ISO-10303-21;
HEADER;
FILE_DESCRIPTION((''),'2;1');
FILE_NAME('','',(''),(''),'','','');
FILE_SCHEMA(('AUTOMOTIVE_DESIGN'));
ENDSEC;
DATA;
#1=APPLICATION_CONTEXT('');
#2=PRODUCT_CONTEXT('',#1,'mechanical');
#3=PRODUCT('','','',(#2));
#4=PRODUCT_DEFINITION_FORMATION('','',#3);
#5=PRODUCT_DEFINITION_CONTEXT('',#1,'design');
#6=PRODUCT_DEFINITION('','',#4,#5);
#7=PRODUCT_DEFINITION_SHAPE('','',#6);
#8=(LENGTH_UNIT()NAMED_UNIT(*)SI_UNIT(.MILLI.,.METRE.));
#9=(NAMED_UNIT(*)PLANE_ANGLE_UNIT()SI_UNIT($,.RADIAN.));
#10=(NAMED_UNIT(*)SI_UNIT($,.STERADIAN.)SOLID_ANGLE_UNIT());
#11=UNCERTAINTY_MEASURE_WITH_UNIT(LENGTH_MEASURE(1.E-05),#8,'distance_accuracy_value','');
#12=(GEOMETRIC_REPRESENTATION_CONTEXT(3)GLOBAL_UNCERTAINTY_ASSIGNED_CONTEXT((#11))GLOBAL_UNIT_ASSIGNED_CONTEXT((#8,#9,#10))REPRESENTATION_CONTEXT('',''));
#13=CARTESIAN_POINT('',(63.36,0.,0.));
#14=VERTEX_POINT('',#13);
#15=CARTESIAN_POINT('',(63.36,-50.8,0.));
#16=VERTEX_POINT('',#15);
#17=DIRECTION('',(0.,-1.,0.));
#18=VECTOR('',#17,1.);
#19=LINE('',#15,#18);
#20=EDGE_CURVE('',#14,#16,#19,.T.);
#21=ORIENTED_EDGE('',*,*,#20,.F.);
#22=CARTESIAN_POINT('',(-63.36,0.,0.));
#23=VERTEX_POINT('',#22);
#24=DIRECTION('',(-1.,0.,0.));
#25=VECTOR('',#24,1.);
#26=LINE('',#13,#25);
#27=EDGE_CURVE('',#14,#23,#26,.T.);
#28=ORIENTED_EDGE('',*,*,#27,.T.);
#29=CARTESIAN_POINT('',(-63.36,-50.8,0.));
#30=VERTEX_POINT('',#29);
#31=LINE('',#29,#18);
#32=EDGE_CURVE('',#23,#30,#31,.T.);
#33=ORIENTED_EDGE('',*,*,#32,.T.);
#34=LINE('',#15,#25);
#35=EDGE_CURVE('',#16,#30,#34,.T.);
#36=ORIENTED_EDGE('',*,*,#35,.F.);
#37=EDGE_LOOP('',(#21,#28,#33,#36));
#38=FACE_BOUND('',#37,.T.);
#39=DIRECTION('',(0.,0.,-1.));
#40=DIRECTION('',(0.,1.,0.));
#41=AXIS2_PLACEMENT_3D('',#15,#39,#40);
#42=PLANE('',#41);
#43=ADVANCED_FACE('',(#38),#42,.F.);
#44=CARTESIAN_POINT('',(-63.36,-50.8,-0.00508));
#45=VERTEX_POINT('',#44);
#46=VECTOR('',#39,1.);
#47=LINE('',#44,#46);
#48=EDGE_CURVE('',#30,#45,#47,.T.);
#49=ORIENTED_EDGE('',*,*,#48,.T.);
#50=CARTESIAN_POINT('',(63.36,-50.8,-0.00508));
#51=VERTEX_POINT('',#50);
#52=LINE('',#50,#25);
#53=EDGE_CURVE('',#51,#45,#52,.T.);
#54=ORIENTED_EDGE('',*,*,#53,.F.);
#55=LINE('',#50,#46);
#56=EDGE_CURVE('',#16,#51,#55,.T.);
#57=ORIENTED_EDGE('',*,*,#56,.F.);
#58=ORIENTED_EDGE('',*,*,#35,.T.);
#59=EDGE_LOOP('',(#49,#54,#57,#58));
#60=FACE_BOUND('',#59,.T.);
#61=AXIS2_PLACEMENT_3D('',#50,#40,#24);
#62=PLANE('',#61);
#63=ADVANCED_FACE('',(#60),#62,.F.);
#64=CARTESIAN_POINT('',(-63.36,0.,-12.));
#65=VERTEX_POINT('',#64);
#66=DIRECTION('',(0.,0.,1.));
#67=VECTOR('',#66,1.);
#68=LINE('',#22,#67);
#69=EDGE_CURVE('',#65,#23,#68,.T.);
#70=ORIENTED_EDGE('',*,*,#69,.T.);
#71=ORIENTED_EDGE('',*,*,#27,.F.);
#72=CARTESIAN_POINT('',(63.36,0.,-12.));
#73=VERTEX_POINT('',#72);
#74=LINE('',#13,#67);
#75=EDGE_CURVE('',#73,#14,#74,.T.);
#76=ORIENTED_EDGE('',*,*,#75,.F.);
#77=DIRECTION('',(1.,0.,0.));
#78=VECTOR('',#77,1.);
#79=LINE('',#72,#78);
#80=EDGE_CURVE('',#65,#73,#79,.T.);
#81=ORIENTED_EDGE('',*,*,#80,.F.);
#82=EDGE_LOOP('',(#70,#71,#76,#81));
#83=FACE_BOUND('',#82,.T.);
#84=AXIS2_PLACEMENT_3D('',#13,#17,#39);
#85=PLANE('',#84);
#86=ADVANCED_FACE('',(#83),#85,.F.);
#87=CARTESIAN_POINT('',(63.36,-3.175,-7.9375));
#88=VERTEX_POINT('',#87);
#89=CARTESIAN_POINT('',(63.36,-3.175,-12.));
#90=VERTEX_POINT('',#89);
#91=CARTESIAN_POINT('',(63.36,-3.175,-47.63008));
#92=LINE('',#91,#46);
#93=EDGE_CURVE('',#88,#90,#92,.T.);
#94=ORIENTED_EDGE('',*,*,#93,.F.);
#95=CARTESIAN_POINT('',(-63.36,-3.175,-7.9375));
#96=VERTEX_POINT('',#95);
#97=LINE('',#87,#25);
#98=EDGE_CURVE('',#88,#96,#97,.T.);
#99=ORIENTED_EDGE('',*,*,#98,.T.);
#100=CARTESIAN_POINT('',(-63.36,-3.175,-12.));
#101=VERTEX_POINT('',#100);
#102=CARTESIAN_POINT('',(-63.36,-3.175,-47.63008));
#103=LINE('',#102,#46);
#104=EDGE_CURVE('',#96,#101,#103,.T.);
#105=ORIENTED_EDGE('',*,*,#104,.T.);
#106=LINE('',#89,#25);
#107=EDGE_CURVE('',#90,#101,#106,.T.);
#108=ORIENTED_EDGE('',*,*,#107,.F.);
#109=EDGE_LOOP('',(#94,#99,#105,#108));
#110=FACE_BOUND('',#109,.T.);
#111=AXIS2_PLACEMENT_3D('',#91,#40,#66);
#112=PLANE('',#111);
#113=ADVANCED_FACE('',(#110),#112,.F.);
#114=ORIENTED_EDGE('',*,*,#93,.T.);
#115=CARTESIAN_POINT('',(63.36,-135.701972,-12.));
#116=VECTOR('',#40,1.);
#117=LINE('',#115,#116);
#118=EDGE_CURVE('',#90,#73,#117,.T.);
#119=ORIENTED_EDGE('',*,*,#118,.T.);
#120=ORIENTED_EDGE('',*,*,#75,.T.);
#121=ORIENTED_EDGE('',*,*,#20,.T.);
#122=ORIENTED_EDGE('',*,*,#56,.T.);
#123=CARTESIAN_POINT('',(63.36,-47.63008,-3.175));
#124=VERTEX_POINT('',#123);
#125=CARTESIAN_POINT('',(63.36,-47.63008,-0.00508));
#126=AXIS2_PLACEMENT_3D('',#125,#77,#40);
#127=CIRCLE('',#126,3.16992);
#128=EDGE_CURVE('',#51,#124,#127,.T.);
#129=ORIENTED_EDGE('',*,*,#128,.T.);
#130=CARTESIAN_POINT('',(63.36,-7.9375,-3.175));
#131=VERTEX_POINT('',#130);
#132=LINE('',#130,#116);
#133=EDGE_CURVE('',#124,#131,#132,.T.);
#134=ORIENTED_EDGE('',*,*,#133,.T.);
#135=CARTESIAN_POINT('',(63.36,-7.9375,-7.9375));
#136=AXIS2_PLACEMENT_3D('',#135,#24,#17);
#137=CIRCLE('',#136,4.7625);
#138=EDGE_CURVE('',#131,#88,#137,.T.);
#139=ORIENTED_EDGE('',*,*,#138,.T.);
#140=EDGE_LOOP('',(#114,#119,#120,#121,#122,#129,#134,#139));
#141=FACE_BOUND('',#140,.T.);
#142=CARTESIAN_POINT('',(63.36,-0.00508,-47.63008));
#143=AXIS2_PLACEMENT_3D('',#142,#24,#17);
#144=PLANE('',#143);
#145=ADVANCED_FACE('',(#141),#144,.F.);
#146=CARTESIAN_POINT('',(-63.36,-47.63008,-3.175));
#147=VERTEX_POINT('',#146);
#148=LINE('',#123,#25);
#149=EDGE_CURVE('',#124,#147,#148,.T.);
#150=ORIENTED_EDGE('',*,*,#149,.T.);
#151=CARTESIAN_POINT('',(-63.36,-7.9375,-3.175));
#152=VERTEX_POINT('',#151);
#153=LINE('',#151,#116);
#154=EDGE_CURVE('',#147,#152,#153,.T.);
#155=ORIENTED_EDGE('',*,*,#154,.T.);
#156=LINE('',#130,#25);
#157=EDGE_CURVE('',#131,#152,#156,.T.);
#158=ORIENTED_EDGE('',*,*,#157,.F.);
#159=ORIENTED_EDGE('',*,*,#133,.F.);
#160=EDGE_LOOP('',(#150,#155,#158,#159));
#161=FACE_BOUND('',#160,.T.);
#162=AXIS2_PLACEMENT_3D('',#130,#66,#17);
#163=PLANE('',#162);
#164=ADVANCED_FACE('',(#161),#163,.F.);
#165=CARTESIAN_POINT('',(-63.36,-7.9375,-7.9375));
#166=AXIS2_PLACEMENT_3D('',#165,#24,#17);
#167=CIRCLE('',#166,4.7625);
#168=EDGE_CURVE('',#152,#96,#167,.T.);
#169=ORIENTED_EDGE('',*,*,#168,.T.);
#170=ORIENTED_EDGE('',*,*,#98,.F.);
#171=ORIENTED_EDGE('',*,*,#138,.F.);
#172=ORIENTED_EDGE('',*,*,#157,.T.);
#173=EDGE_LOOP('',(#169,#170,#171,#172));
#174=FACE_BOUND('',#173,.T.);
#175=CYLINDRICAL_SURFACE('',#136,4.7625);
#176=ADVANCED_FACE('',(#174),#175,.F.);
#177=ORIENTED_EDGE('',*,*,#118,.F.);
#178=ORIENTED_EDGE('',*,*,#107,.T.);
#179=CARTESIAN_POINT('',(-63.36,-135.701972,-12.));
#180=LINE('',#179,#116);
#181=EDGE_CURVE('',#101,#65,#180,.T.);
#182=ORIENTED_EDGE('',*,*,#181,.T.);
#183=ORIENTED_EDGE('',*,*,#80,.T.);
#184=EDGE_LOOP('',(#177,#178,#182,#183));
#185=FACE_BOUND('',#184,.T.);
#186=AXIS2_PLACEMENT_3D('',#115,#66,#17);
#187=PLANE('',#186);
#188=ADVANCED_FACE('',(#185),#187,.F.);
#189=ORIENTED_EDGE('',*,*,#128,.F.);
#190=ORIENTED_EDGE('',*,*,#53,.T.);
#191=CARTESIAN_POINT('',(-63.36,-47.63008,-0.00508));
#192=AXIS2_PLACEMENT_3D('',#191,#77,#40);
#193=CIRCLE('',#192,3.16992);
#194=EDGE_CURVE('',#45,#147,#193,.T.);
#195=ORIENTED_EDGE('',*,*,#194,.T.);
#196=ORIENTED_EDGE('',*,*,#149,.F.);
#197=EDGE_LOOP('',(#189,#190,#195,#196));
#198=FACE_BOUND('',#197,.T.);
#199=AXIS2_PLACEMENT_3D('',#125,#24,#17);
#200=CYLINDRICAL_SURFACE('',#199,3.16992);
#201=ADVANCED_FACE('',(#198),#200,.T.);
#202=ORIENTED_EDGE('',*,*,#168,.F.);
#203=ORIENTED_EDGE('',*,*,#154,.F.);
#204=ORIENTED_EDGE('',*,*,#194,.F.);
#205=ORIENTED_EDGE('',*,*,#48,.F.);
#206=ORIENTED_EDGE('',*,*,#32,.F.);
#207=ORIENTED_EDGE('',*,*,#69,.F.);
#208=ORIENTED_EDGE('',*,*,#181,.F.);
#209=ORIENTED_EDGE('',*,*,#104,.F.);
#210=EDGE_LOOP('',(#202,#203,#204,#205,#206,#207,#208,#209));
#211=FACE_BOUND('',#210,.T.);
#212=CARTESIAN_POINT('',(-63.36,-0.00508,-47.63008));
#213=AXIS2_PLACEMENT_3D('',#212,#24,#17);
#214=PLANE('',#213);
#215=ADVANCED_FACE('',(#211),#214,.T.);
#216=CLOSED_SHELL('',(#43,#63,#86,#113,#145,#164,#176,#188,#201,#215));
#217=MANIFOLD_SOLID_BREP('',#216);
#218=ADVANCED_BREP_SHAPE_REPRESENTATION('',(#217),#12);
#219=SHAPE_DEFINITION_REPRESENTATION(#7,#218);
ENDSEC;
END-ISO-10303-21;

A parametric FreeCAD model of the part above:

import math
import FreeCAD as App
import Part
import Sketcher
from FreeCAD import Vector
Q = App.Units.Quantity


def add_polygon(sketch, points):
    """Adds a closed chain of lines whose ends are joined by coincident constraints."""
    first, n = sketch.GeometryCount, len(points)
    for a, b in zip(points, points[1:] + points[:1]):
        sketch.addGeometry(Part.LineSegment(App.Vector(*a, 0), App.Vector(*b, 0)), False)
    for i in range(n):
        sketch.addConstraint(Sketcher.Constraint("Coincident", first + i, 2, first + (i + 1) % n, 1))

doc = App.newDocument("Part")
params = doc.addObject("Spreadsheet::Sheet", "Params")
for row, (alias, value) in enumerate([
    ("sketch1_width", "2 in"),
    ("sketch1_radius", "0.1875 in"),
    ("pad1_length", "126.72 mm"),
    ("pocket1_length", "0.125 in"),
], start=1):
    params.set(f"A{row}", alias)
    params.set(f"B{row}", "=" + value)
    params.setAlias(f"B{row}", alias)

body = doc.addObject("PartDesign::Body", "Body")

# Sketch on YZ plane
sketch1 = body.newObject("Sketcher::SketchObject", "Sketch")
sketch1.AttachmentSupport = (doc.getObject("YZ_Plane"), [""])
sketch1.MapMode = "FlatFace"
sketch1.AttachmentOffset = App.Placement(Vector(0, 0, -63.36), App.Rotation())
sketch1.addGeometry([
    Part.LineSegment(Vector(0, -50.8, 0), Vector(0, 0, 0)),  # 0
    Part.LineSegment(Vector(0, 0, 0), Vector(-50.8, 0, 0)),  # 1
    Part.LineSegment(Vector(-50.8, 0, 0), Vector(-50.8, -0.00508, 0)),  # 2
    Part.ArcOfCircle(Part.Circle(Vector(-47.63008, -0.00508, 0), Vector(0, 0, 1), 3.16992), math.radians(180), math.radians(270)),  # 3
    Part.LineSegment(Vector(-47.63008, -3.175, 0), Vector(-7.9375, -3.175, 0)),  # 4
    Part.ArcOfCircle(Part.Circle(Vector(-7.9375, -7.9375, 0), Vector(0, 0, 1), 4.7625), math.radians(0), math.radians(90)),  # 5
    Part.LineSegment(Vector(-3.175, -7.9375, 0), Vector(-3.175, -47.63008, 0)),  # 6
    Part.ArcOfCircle(Part.Circle(Vector(-0.00508, -47.63008, 0), Vector(0, 0, 1), 3.16992), math.radians(180), math.radians(270)),  # 7
    Part.LineSegment(Vector(-0.00508, -50.8, 0), Vector(0, -50.8, 0)),  # 8
], False)
sketch1.addConstraint([
    Sketcher.Constraint("Coincident", 0, 2, 1, 1),
    Sketcher.Constraint("Coincident", 1, 2, 2, 1),
    Sketcher.Constraint("Tangent", 2, 2, 3, 1),
    Sketcher.Constraint("Tangent", 3, 2, 4, 1),
    Sketcher.Constraint("Tangent", 4, 2, 5, 2),
    Sketcher.Constraint("Tangent", 5, 1, 6, 1),
    Sketcher.Constraint("Tangent", 6, 2, 7, 1),
    Sketcher.Constraint("Tangent", 7, 2, 8, 1),
    Sketcher.Constraint("Coincident", 8, 2, 0, 1),
    Sketcher.Constraint("Vertical", 0),
    Sketcher.Constraint("Horizontal", 1),
    Sketcher.Constraint("Horizontal", 4),
    Sketcher.Constraint("Vertical", 6),
    Sketcher.Constraint("Coincident", 0, 2, -1, 1),
    Sketcher.Constraint("Equal", 3, 7),
    Sketcher.Constraint("Horizontal", 3, 3, 2, 2),
    Sketcher.Constraint("Equal", 1, 0),
    Sketcher.Constraint("Equal", 8, 2),
    Sketcher.Constraint("Equal", 4, 6),
    Sketcher.Constraint("DistanceX", 1, 2, 1, 1, Q("2 in")),
    Sketcher.Constraint("Radius", 5, Q("0.1875 in")),
    Sketcher.Constraint("Radius", 3, Q("0.1248 in")),
    Sketcher.Constraint("DistanceX", 4, 1, 4, 2, Q("1.5627 in")),
])
sketch1.setExpression("Constraints[19]", "Params.sketch1_width")
sketch1.setExpression("Constraints[20]", "Params.sketch1_radius")
pad1 = body.newObject("PartDesign::Pad", "Pad")
pad1.Profile = sketch1
pad1.setExpression("Length", "Params.pad1_length")

# Sketch on XZ plane
sketch2 = body.newObject("Sketcher::SketchObject", "Sketch001")
sketch2.AttachmentSupport = (doc.getObject("XZ_Plane"), [""])
sketch2.MapMode = "FlatFace"
add_polygon(sketch2, [(-63.36, -50.8), (-63.36, -12), (63.36, -12), (63.36, -50.8)])  # lines 0-3
sketch2.addConstraint([
    Sketcher.Constraint("Vertical", 0),
    Sketcher.Constraint("Horizontal", 1),
    Sketcher.Constraint("Vertical", 2),
    Sketcher.Constraint("Horizontal", 3),
    Sketcher.Constraint("DistanceY", 2, 2, -1, 1, Q("2 in")),
    Sketcher.Constraint("DistanceX", 1, 1, 1, 2, Q("126.72 mm")),
    Sketcher.Constraint("DistanceY", 0, 1, 0, 2, Q("38.8 mm")),
    Sketcher.Constraint("DistanceX", 0, 2, -1, 1, Q("63.36 mm")),
])
pocket1 = body.newObject("PartDesign::Pocket", "Pocket")
pocket1.Profile = sketch2
pocket1.setExpression("Length", "Params.pocket1_length")
pocket1.Reversed = True

doc.recompute()
